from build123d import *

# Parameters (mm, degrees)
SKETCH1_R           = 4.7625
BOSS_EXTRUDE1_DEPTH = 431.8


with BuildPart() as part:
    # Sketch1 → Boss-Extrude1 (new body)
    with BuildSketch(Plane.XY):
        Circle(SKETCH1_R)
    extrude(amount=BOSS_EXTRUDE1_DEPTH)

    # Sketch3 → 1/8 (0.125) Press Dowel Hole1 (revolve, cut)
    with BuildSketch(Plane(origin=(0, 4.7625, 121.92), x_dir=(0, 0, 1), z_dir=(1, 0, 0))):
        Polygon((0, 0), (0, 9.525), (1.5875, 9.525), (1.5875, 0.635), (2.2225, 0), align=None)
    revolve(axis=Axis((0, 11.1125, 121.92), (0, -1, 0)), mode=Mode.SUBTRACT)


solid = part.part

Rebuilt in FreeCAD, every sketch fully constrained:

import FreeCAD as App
import Part
import Sketcher
from FreeCAD import Vector
Q = App.Units.Quantity

doc = App.newDocument("Part")
params = doc.addObject("Spreadsheet::Sheet", "Params")
for row, (alias, value) in enumerate([
    ("sketch1_diameter", "0.375 in"),
    ("pad1_length", "17 in"),
    ("sketch2_width", "0.35 in"),
    ("sketch2_width2", "0.375 in"),
    ("sketch2_height", "0.0625 in"),
    ("groove_angle", "360 deg"),
], start=1):
    params.set(f"A{row}", alias)
    params.set(f"B{row}", "=" + value)
    params.setAlias(f"B{row}", alias)

body = doc.addObject("PartDesign::Body", "Body")

sketch1 = body.newObject("Sketcher::SketchObject", "Sketch")
sketch1.AttachmentSupport = (doc.getObject("XY_Plane"), [""])
sketch1.MapMode = "FlatFace"
sketch1.addGeometry(Part.Circle(Vector(0, 0, 0), Vector(0, 0, 1), 4.8), False)
sketch1.addConstraint([
    Sketcher.Constraint("Coincident", 0, 3, -1, 1),
    Sketcher.Constraint("Diameter", 0, Q("0.375 in")),
])
sketch1.setExpression("Constraints[1]", "Params.sketch1_diameter")
pad1 = body.newObject("PartDesign::Pad", "Pad")
pad1.Profile = sketch1
pad1.setExpression("Length", "Params.pad1_length")

sketch2 = body.newObject("Sketcher::SketchObject", "Sketch001")
sketch2.AttachmentSupport = (doc.getObject("YZ_Plane"), [""])
sketch2.MapMode = "FlatFace"
sketch2.addGeometry([
    Part.LineSegment(Vector(-4.8, 121.9, 0), Vector(4.8, 121.9, 0)),
    Part.LineSegment(Vector(4.8, 121.9, 0), Vector(4.8, 124.1, 0)),
    Part.LineSegment(Vector(4.8, 124.1, 0), Vector(4.1, 123.5, 0)),
    Part.LineSegment(Vector(4.1, 123.5, 0), Vector(-4.8, 123.5, 0)),
    Part.LineSegment(Vector(-4.8, 123.5, 0), Vector(-4.8, 121.9, 0)),
], False)
sketch2.addGeometry(Part.LineSegment(Vector(4.8, 121.9, 0), Vector(-4.8, 121.9, 0)), True)
sketch2.addConstraint([
    Sketcher.Constraint("Coincident", 0, 2, 1, 1),
    Sketcher.Constraint("Coincident", 1, 2, 2, 1),
    Sketcher.Constraint("Coincident", 2, 2, 3, 1),
    Sketcher.Constraint("Coincident", 3, 2, 4, 1),
    Sketcher.Constraint("Coincident", 4, 2, 0, 1),
    Sketcher.Constraint("Horizontal", 0),
    Sketcher.Constraint("Vertical", 1),
    Sketcher.Constraint("Horizontal", 3),
    Sketcher.Constraint("Vertical", 4),
    Sketcher.Constraint("Horizontal", 5),
    Sketcher.Constraint("Coincident", 5, 1, 0, 2),
    Sketcher.Constraint("Vertical", 3, 2, 5, 2),
    Sketcher.Constraint("Angle", 2, Q("-135 deg")),
    Sketcher.Constraint("DistanceX", 3, 2, 3, 1, Q("0.35 in")),
    Sketcher.Constraint("DistanceY", -1, 1, 0, 2, Q("4.8 in")),
    Sketcher.Constraint("DistanceX", 0, 1, 0, 2, Q("0.375 in")),
    Sketcher.Constraint("DistanceY", 4, 2, 4, 1, Q("0.0625 in")),
    Sketcher.Constraint("DistanceX", -1, 1, 0, 2, Q("0.1875 in")),
])
sketch2.setExpression("Constraints[13]", "Params.sketch2_width")
sketch2.setExpression("Constraints[15]", "Params.sketch2_width2")
sketch2.setExpression("Constraints[16]", "Params.sketch2_height")
groove = body.newObject("PartDesign::Groove", "Groove")
groove.Profile = sketch2
groove.ReferenceAxis = (sketch2, ["Axis0"])
groove.setExpression("Angle", "Params.groove_angle")

doc.recompute()
